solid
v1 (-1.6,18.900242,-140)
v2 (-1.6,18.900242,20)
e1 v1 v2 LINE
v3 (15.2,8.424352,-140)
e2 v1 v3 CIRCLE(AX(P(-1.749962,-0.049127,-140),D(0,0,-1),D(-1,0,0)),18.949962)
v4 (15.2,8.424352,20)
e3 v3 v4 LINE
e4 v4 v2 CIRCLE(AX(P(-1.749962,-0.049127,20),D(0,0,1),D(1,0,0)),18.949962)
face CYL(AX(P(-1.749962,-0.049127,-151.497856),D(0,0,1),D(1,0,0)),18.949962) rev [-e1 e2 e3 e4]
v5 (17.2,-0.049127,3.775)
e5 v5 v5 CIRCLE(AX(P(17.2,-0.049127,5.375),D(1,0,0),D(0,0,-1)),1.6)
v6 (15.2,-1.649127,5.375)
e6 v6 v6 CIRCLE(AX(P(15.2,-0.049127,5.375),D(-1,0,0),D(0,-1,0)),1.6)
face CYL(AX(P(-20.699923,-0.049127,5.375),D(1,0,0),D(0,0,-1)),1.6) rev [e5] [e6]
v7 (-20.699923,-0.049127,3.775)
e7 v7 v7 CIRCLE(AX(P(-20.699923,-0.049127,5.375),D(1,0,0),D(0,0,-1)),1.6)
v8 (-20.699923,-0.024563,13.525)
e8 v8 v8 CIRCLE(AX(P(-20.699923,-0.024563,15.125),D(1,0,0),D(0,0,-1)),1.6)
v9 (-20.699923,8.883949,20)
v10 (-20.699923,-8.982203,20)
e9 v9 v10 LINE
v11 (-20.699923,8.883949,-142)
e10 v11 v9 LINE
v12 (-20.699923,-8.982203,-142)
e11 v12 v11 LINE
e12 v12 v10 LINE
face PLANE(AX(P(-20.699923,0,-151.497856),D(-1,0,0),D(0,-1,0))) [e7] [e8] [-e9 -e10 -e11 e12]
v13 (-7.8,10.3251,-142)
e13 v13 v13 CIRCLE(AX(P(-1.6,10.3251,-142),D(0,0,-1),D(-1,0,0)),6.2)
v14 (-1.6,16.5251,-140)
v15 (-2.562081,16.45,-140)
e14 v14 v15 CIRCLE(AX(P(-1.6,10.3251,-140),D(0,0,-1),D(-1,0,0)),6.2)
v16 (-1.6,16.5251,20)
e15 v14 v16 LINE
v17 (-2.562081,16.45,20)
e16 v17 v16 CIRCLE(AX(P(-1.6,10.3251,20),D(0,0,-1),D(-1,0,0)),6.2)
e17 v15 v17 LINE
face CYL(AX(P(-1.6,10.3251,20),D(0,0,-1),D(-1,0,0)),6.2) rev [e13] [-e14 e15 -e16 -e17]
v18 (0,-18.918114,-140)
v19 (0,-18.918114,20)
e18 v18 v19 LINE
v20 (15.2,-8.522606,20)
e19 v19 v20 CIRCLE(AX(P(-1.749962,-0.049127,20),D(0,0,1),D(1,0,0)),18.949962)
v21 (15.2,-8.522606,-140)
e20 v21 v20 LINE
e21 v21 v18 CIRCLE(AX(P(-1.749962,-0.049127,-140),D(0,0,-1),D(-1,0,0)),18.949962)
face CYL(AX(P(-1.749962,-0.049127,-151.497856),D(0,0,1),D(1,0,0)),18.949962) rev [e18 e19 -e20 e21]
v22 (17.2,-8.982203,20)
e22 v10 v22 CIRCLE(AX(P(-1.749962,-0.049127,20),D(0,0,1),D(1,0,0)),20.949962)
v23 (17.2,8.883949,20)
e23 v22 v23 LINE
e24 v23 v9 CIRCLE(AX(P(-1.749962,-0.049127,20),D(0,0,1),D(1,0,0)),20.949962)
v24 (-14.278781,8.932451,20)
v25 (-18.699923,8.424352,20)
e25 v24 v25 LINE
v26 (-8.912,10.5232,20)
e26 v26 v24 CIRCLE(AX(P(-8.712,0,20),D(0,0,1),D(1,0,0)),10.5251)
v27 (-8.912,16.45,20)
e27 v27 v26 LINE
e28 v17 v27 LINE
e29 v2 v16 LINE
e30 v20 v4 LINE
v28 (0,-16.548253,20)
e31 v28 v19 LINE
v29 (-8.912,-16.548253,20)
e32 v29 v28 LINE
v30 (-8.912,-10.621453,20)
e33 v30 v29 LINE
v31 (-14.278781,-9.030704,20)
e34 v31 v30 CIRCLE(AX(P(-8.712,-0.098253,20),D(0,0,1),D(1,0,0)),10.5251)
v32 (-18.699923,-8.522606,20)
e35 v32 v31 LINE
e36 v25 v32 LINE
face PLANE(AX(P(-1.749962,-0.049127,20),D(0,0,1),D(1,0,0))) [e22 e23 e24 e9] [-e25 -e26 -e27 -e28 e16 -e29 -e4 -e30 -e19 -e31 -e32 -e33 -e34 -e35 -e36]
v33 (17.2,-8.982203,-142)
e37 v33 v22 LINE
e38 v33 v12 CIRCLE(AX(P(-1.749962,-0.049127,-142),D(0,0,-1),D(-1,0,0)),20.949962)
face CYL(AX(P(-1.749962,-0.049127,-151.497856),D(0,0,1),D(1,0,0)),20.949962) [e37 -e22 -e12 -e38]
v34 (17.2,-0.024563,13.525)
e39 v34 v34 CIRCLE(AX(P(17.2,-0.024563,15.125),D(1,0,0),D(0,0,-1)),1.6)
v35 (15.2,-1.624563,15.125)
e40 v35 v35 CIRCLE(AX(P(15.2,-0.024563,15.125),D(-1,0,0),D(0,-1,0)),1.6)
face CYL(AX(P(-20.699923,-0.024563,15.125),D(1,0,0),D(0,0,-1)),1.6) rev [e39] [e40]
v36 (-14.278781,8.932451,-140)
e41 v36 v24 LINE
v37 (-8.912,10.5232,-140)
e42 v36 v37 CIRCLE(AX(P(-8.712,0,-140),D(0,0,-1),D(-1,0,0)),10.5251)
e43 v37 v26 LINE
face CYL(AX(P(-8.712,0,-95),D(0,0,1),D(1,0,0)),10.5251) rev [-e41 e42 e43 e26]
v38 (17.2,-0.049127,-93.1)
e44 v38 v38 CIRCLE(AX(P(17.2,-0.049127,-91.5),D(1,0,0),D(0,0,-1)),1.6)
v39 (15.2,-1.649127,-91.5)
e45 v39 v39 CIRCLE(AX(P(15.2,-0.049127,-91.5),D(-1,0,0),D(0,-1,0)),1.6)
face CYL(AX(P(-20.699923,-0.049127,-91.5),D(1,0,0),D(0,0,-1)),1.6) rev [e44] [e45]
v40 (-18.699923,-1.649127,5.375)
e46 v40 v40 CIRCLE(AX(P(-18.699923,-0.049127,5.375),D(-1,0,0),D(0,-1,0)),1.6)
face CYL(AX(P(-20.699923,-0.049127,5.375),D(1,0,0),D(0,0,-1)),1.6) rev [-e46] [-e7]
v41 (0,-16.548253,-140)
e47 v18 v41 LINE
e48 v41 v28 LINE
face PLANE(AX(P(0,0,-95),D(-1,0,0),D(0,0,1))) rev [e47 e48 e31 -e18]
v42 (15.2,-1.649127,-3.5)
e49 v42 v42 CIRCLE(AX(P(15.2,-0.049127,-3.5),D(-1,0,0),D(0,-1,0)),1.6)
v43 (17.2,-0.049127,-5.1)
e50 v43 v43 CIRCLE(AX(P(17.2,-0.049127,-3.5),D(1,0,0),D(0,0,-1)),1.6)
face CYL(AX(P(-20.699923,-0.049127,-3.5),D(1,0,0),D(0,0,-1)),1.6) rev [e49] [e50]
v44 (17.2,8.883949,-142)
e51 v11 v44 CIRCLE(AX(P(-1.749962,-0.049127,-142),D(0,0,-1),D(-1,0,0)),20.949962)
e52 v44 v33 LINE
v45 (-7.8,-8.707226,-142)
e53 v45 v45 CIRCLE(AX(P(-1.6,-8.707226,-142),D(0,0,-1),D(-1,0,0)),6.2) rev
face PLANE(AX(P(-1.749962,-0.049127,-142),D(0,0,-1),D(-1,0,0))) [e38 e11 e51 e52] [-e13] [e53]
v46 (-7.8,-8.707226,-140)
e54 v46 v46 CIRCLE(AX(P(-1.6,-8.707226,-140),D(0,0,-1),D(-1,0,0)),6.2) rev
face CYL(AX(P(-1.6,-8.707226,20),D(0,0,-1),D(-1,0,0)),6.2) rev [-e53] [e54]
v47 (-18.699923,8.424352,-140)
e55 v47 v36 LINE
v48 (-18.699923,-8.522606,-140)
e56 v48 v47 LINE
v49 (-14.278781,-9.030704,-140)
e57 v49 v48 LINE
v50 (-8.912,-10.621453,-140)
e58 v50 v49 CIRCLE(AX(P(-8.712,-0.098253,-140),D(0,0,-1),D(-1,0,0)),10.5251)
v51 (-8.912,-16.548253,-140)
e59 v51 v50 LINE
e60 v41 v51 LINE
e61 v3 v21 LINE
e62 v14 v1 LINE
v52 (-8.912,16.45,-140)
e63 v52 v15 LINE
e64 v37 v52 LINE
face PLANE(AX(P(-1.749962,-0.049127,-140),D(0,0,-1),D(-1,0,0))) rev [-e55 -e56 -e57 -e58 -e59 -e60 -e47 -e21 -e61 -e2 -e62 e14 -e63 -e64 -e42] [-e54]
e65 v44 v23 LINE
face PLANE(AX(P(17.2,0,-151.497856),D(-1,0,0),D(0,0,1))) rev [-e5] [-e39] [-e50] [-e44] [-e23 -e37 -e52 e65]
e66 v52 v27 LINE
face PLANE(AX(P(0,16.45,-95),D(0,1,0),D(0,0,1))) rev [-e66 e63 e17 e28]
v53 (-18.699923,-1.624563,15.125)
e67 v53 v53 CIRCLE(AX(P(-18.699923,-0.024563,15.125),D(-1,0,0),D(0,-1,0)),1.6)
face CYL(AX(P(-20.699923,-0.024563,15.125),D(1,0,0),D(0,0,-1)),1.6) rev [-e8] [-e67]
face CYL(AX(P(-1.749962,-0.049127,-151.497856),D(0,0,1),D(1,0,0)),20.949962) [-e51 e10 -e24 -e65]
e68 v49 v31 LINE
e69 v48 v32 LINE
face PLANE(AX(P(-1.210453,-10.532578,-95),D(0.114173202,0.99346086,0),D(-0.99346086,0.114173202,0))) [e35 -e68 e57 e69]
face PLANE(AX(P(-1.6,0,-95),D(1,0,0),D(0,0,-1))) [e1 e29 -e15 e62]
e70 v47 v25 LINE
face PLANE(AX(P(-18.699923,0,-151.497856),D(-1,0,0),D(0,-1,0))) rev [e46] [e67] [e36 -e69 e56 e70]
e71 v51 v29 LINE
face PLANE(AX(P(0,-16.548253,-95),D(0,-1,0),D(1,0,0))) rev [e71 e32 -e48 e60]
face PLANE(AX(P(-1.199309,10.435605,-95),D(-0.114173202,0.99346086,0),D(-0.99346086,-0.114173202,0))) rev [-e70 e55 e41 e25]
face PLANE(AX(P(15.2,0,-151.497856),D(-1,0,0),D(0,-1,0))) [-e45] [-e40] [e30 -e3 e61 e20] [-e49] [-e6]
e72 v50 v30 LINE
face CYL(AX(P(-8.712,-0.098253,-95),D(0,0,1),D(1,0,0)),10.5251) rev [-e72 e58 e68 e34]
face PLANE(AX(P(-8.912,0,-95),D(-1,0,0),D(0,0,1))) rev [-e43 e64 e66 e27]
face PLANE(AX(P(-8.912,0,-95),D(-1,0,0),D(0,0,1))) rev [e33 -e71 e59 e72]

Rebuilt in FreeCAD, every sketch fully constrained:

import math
import FreeCAD as App
import Part
import Sketcher
from FreeCAD import Vector
Q = App.Units.Quantity

doc = App.newDocument("Part")
body = doc.addObject("PartDesign::Body", "Body")

# Sketch on XY plane
sketch1 = body.newObject("Sketcher::SketchObject", "Sketch")
sketch1.AttachmentSupport = (doc.getObject("XY_Plane"), [""])
sketch1.MapMode = "FlatFace"
sketch1.addGeometry(Part.LineSegment(Vector(-20.699923, 8.883949, 0), Vector(-20.699923, -8.982203, 0)), False)
sketch1.addGeometry(Part.ArcOfCircle(Part.Circle(Vector(-1.749962, -0.049127, 0), Vector(0, 0, 1), 20.949962), math.radians(-154.760652), math.radians(-25.239348)), False)
sketch1.addGeometry(Part.LineSegment(Vector(17.2, -8.982203, 0), Vector(17.2, 8.883949, 0)), False)
sketch1.addGeometry(Part.ArcOfCircle(Part.Circle(Vector(-1.749962, -0.049127, 0), Vector(0, 0, 1), 20.949962), math.radians(25.239348), math.radians(154.760652)), False)
sketch1.addGeometry(Part.ArcOfCircle(Part.Circle(Vector(-1.749962, -0.049127, 0), Vector(0, 0, 1), 18.949962), math.radians(-153.43901), math.radians(-26.56099)), False)
sketch1.addGeometry(Part.LineSegment(Vector(-18.699923, -8.522606, 0), Vector(-18.699923, 8.424352, 0)), False)
sketch1.addGeometry(Part.ArcOfCircle(Part.Circle(Vector(-1.749962, -0.049127, 0), Vector(0, 0, 1), 18.949962), math.radians(26.56099), math.radians(153.43901)), False)
sketch1.addGeometry(Part.LineSegment(Vector(15.2, 8.424352, 0), Vector(15.2, -8.522606, 0)), False)
sketch1.addConstraint(Sketcher.Constraint("Coincident", 0, 2, 1, 1))
sketch1.addConstraint(Sketcher.Constraint("Coincident", 1, 2, 2, 1))
sketch1.addConstraint(Sketcher.Constraint("Coincident", 2, 2, 3, 1))
sketch1.addConstraint(Sketcher.Constraint("Coincident", 3, 2, 0, 1))
sketch1.addConstraint(Sketcher.Constraint("Coincident", 4, 1, 5, 1))
sketch1.addConstraint(Sketcher.Constraint("Coincident", 5, 2, 6, 2))
sketch1.addConstraint(Sketcher.Constraint("Coincident", 6, 1, 7, 1))
sketch1.addConstraint(Sketcher.Constraint("Coincident", 7, 2, 4, 2))
sketch1.addConstraint(Sketcher.Constraint("Vertical", 0))
sketch1.addConstraint(Sketcher.Constraint("Vertical", 2))
sketch1.addConstraint(Sketcher.Constraint("Vertical", 5))
sketch1.addConstraint(Sketcher.Constraint("Vertical", 7))
sketch1.addConstraint(Sketcher.Constraint("Coincident", 3, 3, 1, 3))
sketch1.addConstraint(Sketcher.Constraint("Coincident", 4, 3, 1, 3))
sketch1.addConstraint(Sketcher.Constraint("Coincident", 6, 3, 1, 3))
sketch1.addConstraint(Sketcher.Constraint("Equal", 1, 3))
sketch1.addConstraint(Sketcher.Constraint("Equal", 4, 6))
sketch1.addConstraint(Sketcher.Constraint("Horizontal", 0, 2, 1, 2))
sketch1.addConstraint(Sketcher.Constraint("Horizontal", 5, 2, 6, 1))
sketch1.addConstraint(Sketcher.Constraint("DistanceX", 0, 2, 4, 1, Q("2 mm")))
sketch1.addConstraint(Sketcher.Constraint("DistanceX", -1, 1, 1, 2, Q("17.2 mm")))
sketch1.addConstraint(Sketcher.Constraint("Radius", 1, Q("20.949962 mm")))
sketch1.addConstraint(Sketcher.Constraint("Radius", 4, Q("18.949962 mm")))
sketch1.addConstraint(Sketcher.Constraint("DistanceY", 5, 1, 5, 2, Q("16.946958 mm")))
sketch1.addConstraint(Sketcher.Constraint("DistanceY", -1, 1, 2, 2, Q("8.883949 mm")))
pad1 = body.newObject("PartDesign::Pad", "Pad")
pad1.Profile = sketch1
pad1.Length = 95
pad1.Reversed = True

# Sketch on XY plane
sketch2 = body.newObject("Sketcher::SketchObject", "Sketch001")
sketch2.AttachmentSupport = (doc.getObject("XY_Plane"), [""])
sketch2.MapMode = "FlatFace"
sketch2.addGeometry(Part.ArcOfCircle(Part.Circle(Vector(-8.712, 0, 0), Vector(0, 0, 1), 10.5251), math.radians(91.088811), math.radians(121.931519)), False)
sketch2.addGeometry(Part.LineSegment(Vector(-8.912, 10.5232, 0), Vector(-8.912, 16.45, 0)), False)
sketch2.addGeometry(Part.LineSegment(Vector(-8.912, 16.45, 0), Vector(7.570975, 16.45, 0)), False)
sketch2.addGeometry(Part.ArcOfCircle(Part.Circle(Vector(-1.749962, -0.049127, 0), Vector(0, 0, 1), 18.949962), math.radians(60.536367), math.radians(153.43901)), False)
sketch2.addGeometry(Part.LineSegment(Vector(-18.699923, 8.424352, 0), Vector(-14.278781, 8.932451, 0)), False)
sketch2.addGeometry(Part.ArcOfCircle(Part.Circle(Vector(-8.712, -0.098253, 0), Vector(0, 0, 1), 10.5251), math.radians(-121.931519), math.radians(-91.088811)), False)
sketch2.addGeometry(Part.LineSegment(Vector(-14.278781, -9.030704, 0), Vector(-18.699923, -8.522606, 0)), False)
sketch2.addGeometry(Part.ArcOfCircle(Part.Circle(Vector(-1.749962, -0.049127, 0), Vector(0, 0, 1), 18.949962), math.radians(-153.43901), math.radians(-60.536367)), False)
sketch2.addGeometry(Part.LineSegment(Vector(7.570975, -16.548253, 0), Vector(-8.912, -16.548253, 0)), False)
sketch2.addGeometry(Part.LineSegment(Vector(-8.912, -16.548253, 0), Vector(-8.912, -10.621453, 0)), False)
sketch2.addConstraint(Sketcher.Constraint("Coincident", 0, 1, 1, 1))
sketch2.addConstraint(Sketcher.Constraint("Coincident", 1, 2, 2, 1))
sketch2.addConstraint(Sketcher.Constraint("Coincident", 2, 2, 3, 1))
sketch2.addConstraint(Sketcher.Constraint("Coincident", 3, 2, 4, 1))
sketch2.addConstraint(Sketcher.Constraint("Coincident", 4, 2, 0, 2))
sketch2.addConstraint(Sketcher.Constraint("Coincident", 5, 1, 6, 1))
sketch2.addConstraint(Sketcher.Constraint("Coincident", 6, 2, 7, 1))
sketch2.addConstraint(Sketcher.Constraint("Coincident", 7, 2, 8, 1))
sketch2.addConstraint(Sketcher.Constraint("Coincident", 8, 2, 9, 1))
sketch2.addConstraint(Sketcher.Constraint("Coincident", 9, 2, 5, 2))
sketch2.addConstraint(Sketcher.Constraint("Vertical", 1))
sketch2.addConstraint(Sketcher.Constraint("Horizontal", 2))
sketch2.addConstraint(Sketcher.Constraint("Horizontal", 8))
sketch2.addConstraint(Sketcher.Constraint("Vertical", 9))
sketch2.addConstraint(Sketcher.Constraint("Coincident", 7, 3, 3, 3))
sketch2.addConstraint(Sketcher.Constraint("Equal", 0, 5))
sketch2.addConstraint(Sketcher.Constraint("Equal", 3, 7))
sketch2.addConstraint(Sketcher.Constraint("PointOnObject", 0, 3, -1))
sketch2.addConstraint(Sketcher.Constraint("Vertical", 0, 3, 5, 3))
sketch2.addConstraint(Sketcher.Constraint("Vertical", 4, 2, 5, 1))
sketch2.addConstraint(Sketcher.Constraint("Vertical", 3, 2, 6, 2))
sketch2.addConstraint(Sketcher.Constraint("Vertical", 2, 2, 7, 2))
sketch2.addConstraint(Sketcher.Constraint("Vertical", 1, 2, 8, 2))
sketch2.addConstraint(Sketcher.Constraint("Equal", 1, 9))
sketch2.addConstraint(Sketcher.Constraint("Radius", 0, Q("10.5251 mm")))
sketch2.addConstraint(Sketcher.Constraint("DistanceX", 0, 1, 0, 3, Q("0.2 mm")))
sketch2.addConstraint(Sketcher.Constraint("DistanceY", -1, 1, 1, 2, Q("16.45 mm")))
sketch2.addConstraint(Sketcher.Constraint("Radius", 3, Q("18.949962 mm")))
sketch2.addConstraint(Sketcher.Constraint("DistanceX", 0, 3, -1, 1, Q("8.712 mm")))
sketch2.addConstraint(Sketcher.Constraint("DistanceY", 3, 2, 4, 2, Q("0.508099 mm")))
sketch2.addConstraint(Sketcher.Constraint("DistanceX", 2, 1, 2, 2, Q("16.482975 mm")))
sketch2.addConstraint(Sketcher.Constraint("DistanceX", 3, 3, -1, 1, Q("1.749962 mm")))
sketch2.addConstraint(Sketcher.Constraint("DistanceX", 4, 2, -1, 1, Q("14.278781 mm")))
pad2 = body.newObject("PartDesign::Pad", "Pad001")
pad2.Profile = sketch2
pad2.Length = 95
pad2.Reversed = True

# Sketch on XY plane
sketch3 = body.newObject("Sketcher::SketchObject", "Sketch002")
sketch3.AttachmentSupport = (doc.getObject("XY_Plane"), [""])
sketch3.MapMode = "FlatFace"
sketch3.addGeometry(Part.LineSegment(Vector(7.570975, -16.548253, 0), Vector(0, -16.548253, 0)), False)
sketch3.addGeometry(Part.LineSegment(Vector(0, -16.548253, 0), Vector(0, -18.918114, 0)), False)
sketch3.addGeometry(Part.ArcOfCircle(Part.Circle(Vector(-1.749962, -0.049127, 0), Vector(0, 0, 1), 18.949962), math.radians(-84.701389), math.radians(-60.536367)), False)
sketch3.addGeometry(Part.ArcOfCircle(Part.Circle(Vector(-1.749962, -0.049127, 0), Vector(0, 0, 1), 18.949962), math.radians(60.536367), math.radians(89.546581)), False)
sketch3.addGeometry(Part.LineSegment(Vector(-1.6, 18.900242, 0), Vector(-1.6, 16.45, 0)), False)
sketch3.addGeometry(Part.LineSegment(Vector(-1.6, 16.45, 0), Vector(7.570975, 16.45, 0)), False)
sketch3.addConstraint(Sketcher.Constraint("Coincident", 0, 2, 1, 1))
sketch3.addConstraint(Sketcher.Constraint("Coincident", 1, 2, 2, 1))
sketch3.addConstraint(Sketcher.Constraint("Coincident", 2, 2, 0, 1))
sketch3.addConstraint(Sketcher.Constraint("Coincident", 3, 2, 4, 1))
sketch3.addConstraint(Sketcher.Constraint("Coincident", 4, 2, 5, 1))
sketch3.addConstraint(Sketcher.Constraint("Coincident", 5, 2, 3, 1))
sketch3.addConstraint(Sketcher.Constraint("Horizontal", 0))
sketch3.addConstraint(Sketcher.Constraint("Vertical", 1))
sketch3.addConstraint(Sketcher.Constraint("Vertical", 4))
sketch3.addConstraint(Sketcher.Constraint("Horizontal", 5))
sketch3.addConstraint(Sketcher.Constraint("Coincident", 3, 3, 2, 3))
sketch3.addConstraint(Sketcher.Constraint("Equal", 2, 3))
sketch3.addConstraint(Sketcher.Constraint("PointOnObject", 0, 2, -2))
sketch3.addConstraint(Sketcher.Constraint("Vertical", 2, 2, 5, 2))
sketch3.addConstraint(Sketcher.Constraint("DistanceX", 3, 2, -1, 1, Q("1.6 mm")))
sketch3.addConstraint(Sketcher.Constraint("DistanceY", -1, 1, 4, 2, Q("16.45 mm")))
sketch3.addConstraint(Sketcher.Constraint("Radius", 2, Q("18.949962 mm")))
sketch3.addConstraint(Sketcher.Constraint("DistanceY", 1, 2, 1, 1, Q("2.369861 mm")))
sketch3.addConstraint(Sketcher.Constraint("DistanceY", 4, 2, 4, 1, Q("2.450242 mm")))
pocket1 = body.newObject("PartDesign::Pocket", "Pocket")
pocket1.Profile = sketch3
pocket1.Type = "ThroughAll"

# Sketch on XY plane
sketch4 = body.newObject("Sketcher::SketchObject", "Sketch003")
sketch4.AttachmentSupport = (doc.getObject("XY_Plane"), [""])
sketch4.MapMode = "FlatFace"
sketch4.addGeometry(Part.LineSegment(Vector(-20.699923, 8.883949, 0), Vector(-20.699923, -8.982203, 0)), False)
sketch4.addGeometry(Part.ArcOfCircle(Part.Circle(Vector(-1.749962, -0.049127, 0), Vector(0, 0, 1), 20.949962), math.radians(-154.760652), math.radians(-25.239348)), False)
sketch4.addGeometry(Part.LineSegment(Vector(17.2, -8.982203, 0), Vector(17.2, 8.883949, 0)), False)
sketch4.addGeometry(Part.ArcOfCircle(Part.Circle(Vector(-1.749962, -0.049127, 0), Vector(0, 0, 1), 20.949962), math.radians(25.239348), math.radians(154.760652)), False)
sketch4.addGeometry(Part.LineSegment(Vector(-14.278781, -9.030704, 0), Vector(-18.699923, -8.522606, 0)), False)
sketch4.addGeometry(Part.LineSegment(Vector(-18.699923, -8.522606, 0), Vector(-18.699923, 8.424352, 0)), False)
sketch4.addGeometry(Part.LineSegment(Vector(-18.699923, 8.424352, 0), Vector(-14.278781, 8.932451, 0)), False)
sketch4.addGeometry(Part.ArcOfCircle(Part.Circle(Vector(-8.712, 0, 0), Vector(0, 0, 1), 10.5251), math.radians(91.088811), math.radians(121.931519)), False)
sketch4.addGeometry(Part.LineSegment(Vector(-8.912, 10.5232, 0), Vector(-8.912, 16.45, 0)), False)
sketch4.addGeometry(Part.LineSegment(Vector(-8.912, 16.45, 0), Vector(-1.6, 16.45, 0)), False)
sketch4.addGeometry(Part.LineSegment(Vector(-1.6, 16.45, 0), Vector(-1.6, 18.900242, 0)), False)
sketch4.addGeometry(Part.ArcOfCircle(Part.Circle(Vector(-1.749962, -0.049127, 0), Vector(0, 0, 1), 18.949962), math.radians(26.56099), math.radians(89.546581)), False)
sketch4.addGeometry(Part.LineSegment(Vector(15.2, 8.424352, 0), Vector(15.2, -8.522606, 0)), False)
sketch4.addGeometry(Part.ArcOfCircle(Part.Circle(Vector(-1.749962, -0.049127, 0), Vector(0, 0, 1), 18.949962), math.radians(-84.701389), math.radians(-26.56099)), False)
sketch4.addGeometry(Part.LineSegment(Vector(0, -18.918114, 0), Vector(0, -16.548253, 0)), False)
sketch4.addGeometry(Part.LineSegment(Vector(0, -16.548253, 0), Vector(-8.912, -16.548253, 0)), False)
sketch4.addGeometry(Part.LineSegment(Vector(-8.912, -16.548253, 0), Vector(-8.912, -10.621453, 0)), False)
sketch4.addGeometry(Part.ArcOfCircle(Part.Circle(Vector(-8.712, -0.098253, 0), Vector(0, 0, 1), 10.5251), math.radians(-121.931519), math.radians(-91.088811)), False)
sketch4.addConstraint(Sketcher.Constraint("Coincident", 0, 2, 1, 1))
sketch4.addConstraint(Sketcher.Constraint("Coincident", 1, 2, 2, 1))
sketch4.addConstraint(Sketcher.Constraint("Coincident", 2, 2, 3, 1))
sketch4.addConstraint(Sketcher.Constraint("Coincident", 3, 2, 0, 1))
sketch4.addConstraint(Sketcher.Constraint("Coincident", 4, 2, 5, 1))
sketch4.addConstraint(Sketcher.Constraint("Coincident", 5, 2, 6, 1))
sketch4.addConstraint(Sketcher.Constraint("Coincident", 6, 2, 7, 2))
sketch4.addConstraint(Sketcher.Constraint("Coincident", 7, 1, 8, 1))
sketch4.addConstraint(Sketcher.Constraint("Coincident", 8, 2, 9, 1))
sketch4.addConstraint(Sketcher.Constraint("Coincident", 9, 2, 10, 1))
sketch4.addConstraint(Sketcher.Constraint("Coincident", 10, 2, 11, 2))
sketch4.addConstraint(Sketcher.Constraint("Coincident", 11, 1, 12, 1))
sketch4.addConstraint(Sketcher.Constraint("Coincident", 12, 2, 13, 2))
sketch4.addConstraint(Sketcher.Constraint("Coincident", 13, 1, 14, 1))
sketch4.addConstraint(Sketcher.Constraint("Coincident", 14, 2, 15, 1))
sketch4.addConstraint(Sketcher.Constraint("Coincident", 15, 2, 16, 1))
sketch4.addConstraint(Sketcher.Constraint("Coincident", 16, 2, 17, 2))
sketch4.addConstraint(Sketcher.Constraint("Coincident", 17, 1, 4, 1))
sketch4.addConstraint(Sketcher.Constraint("Vertical", 0))
sketch4.addConstraint(Sketcher.Constraint("Vertical", 2))
sketch4.addConstraint(Sketcher.Constraint("Vertical", 5))
sketch4.addConstraint(Sketcher.Constraint("Vertical", 8))
sketch4.addConstraint(Sketcher.Constraint("Horizontal", 9))
sketch4.addConstraint(Sketcher.Constraint("Vertical", 10))
sketch4.addConstraint(Sketcher.Constraint("Vertical", 12))
sketch4.addConstraint(Sketcher.Constraint("Vertical", 14))
sketch4.addConstraint(Sketcher.Constraint("Horizontal", 15))
sketch4.addConstraint(Sketcher.Constraint("Vertical", 16))
sketch4.addConstraint(Sketcher.Constraint("Coincident", 3, 3, 1, 3))
sketch4.addConstraint(Sketcher.Constraint("Coincident", 11, 3, 1, 3))
sketch4.addConstraint(Sketcher.Constraint("Coincident", 13, 3, 1, 3))
sketch4.addConstraint(Sketcher.Constraint("Equal", 1, 3))
sketch4.addConstraint(Sketcher.Constraint("Equal", 11, 13))
sketch4.addConstraint(Sketcher.Constraint("Equal", 7, 17))
sketch4.addConstraint(Sketcher.Constraint("PointOnObject", 7, 3, -1))
sketch4.addConstraint(Sketcher.Constraint("PointOnObject", 13, 1, -2))
sketch4.addConstraint(Sketcher.Constraint("Horizontal", 0, 2, 1, 2))
sketch4.addConstraint(Sketcher.Constraint("Horizontal", 5, 2, 11, 1))
sketch4.addConstraint(Sketcher.Constraint("Horizontal", 4, 2, 12, 2))
sketch4.addConstraint(Sketcher.Constraint("Vertical", 7, 3, 17, 3))
sketch4.addConstraint(Sketcher.Constraint("Vertical", 8, 2, 15, 2))
sketch4.addConstraint(Sketcher.Constraint("Vertical", 6, 2, 17, 1))
sketch4.addConstraint(Sketcher.Constraint("Equal", 8, 16))
sketch4.addConstraint(Sketcher.Constraint("Equal", 4, 6))
sketch4.addConstraint(Sketcher.Constraint("DistanceX", 0, 2, 4, 2, Q("2 mm")))
sketch4.addConstraint(Sketcher.Constraint("DistanceX", 11, 1, 2, 2, Q("2 mm")))
sketch4.addConstraint(Sketcher.Constraint("DistanceX", -1, 1, 1, 2, Q("17.2 mm")))
sketch4.addConstraint(Sketcher.Constraint("DistanceX", 9, 2, -1, 1, Q("1.6 mm")))
sketch4.addConstraint(Sketcher.Constraint("Radius", 7, Q("10.5251 mm")))
sketch4.addConstraint(Sketcher.Constraint("DistanceX", 7, 1, 7, 3, Q("0.2 mm")))
sketch4.addConstraint(Sketcher.Constraint("DistanceX", 9, 1, 9, 2, Q("7.312 mm")))
sketch4.addConstraint(Sketcher.Constraint("DistanceY", -1, 1, 8, 2, Q("16.45 mm")))
sketch4.addConstraint(Sketcher.Constraint("Radius", 1, Q("20.949962 mm")))
sketch4.addConstraint(Sketcher.Constraint("Radius", 11, Q("18.949962 mm")))
sketch4.addConstraint(Sketcher.Constraint("DistanceY", 5, 1, 5, 2, Q("16.946958 mm")))
sketch4.addConstraint(Sketcher.Constraint("DistanceY", 10, 1, 10, 2, Q("2.450242 mm")))
sketch4.addConstraint(Sketcher.Constraint("DistanceY", 5, 2, 6, 2, Q("0.508099 mm")))
pad3 = body.newObject("PartDesign::Pad", "Pad002")
pad3.Profile = sketch4
pad3.Length = 20

# Sketch on XY plane
sketch5 = body.newObject("Sketcher::SketchObject", "Sketch004")
sketch5.AttachmentSupport = (doc.getObject("XY_Plane"), [""])
sketch5.MapMode = "FlatFace"
sketch5.AttachmentOffset = App.Placement(Vector(0, 0, -95), App.Rotation())
sketch5.addGeometry(Part.LineSegment(Vector(-20.699923, -8.982203, 0), Vector(-20.699923, 8.883949, 0)), False)
sketch5.addGeometry(Part.ArcOfCircle(Part.Circle(Vector(-1.749962, -0.049127, 0), Vector(0, 0, 1), 20.949962), math.radians(25.239348), math.radians(154.760652)), False)
sketch5.addGeometry(Part.LineSegment(Vector(17.2, 8.883949, 0), Vector(17.2, -8.982203, 0)), False)
sketch5.addGeometry(Part.ArcOfCircle(Part.Circle(Vector(-1.749962, -0.049127, 0), Vector(0, 0, 1), 20.949962), math.radians(-154.760652), math.radians(-25.239348)), False)
sketch5.addGeometry(Part.LineSegment(Vector(15.2, -8.522606, 0), Vector(15.2, 8.424352, 0)), False)
sketch5.addGeometry(Part.ArcOfCircle(Part.Circle(Vector(-1.749962, -0.049127, 0), Vector(0, 0, 1), 18.949962), math.radians(26.56099), math.radians(89.546581)), False)
sketch5.addGeometry(Part.LineSegment(Vector(-1.6, 18.900242, 0), Vector(-1.6, 16.45, 0)), False)
sketch5.addGeometry(Part.LineSegment(Vector(-1.6, 16.45, 0), Vector(-8.912, 16.45, 0)), False)
sketch5.addGeometry(Part.LineSegment(Vector(-8.912, 16.45, 0), Vector(-8.912, 10.5232, 0)), False)
sketch5.addGeometry(Part.ArcOfCircle(Part.Circle(Vector(-8.712, 0, 0), Vector(0, 0, 1), 10.5251), math.radians(91.088811), math.radians(121.931519)), False)
sketch5.addGeometry(Part.LineSegment(Vector(-14.278781, 8.932451, 0), Vector(-18.699923, 8.424352, 0)), False)
sketch5.addGeometry(Part.LineSegment(Vector(-18.699923, 8.424352, 0), Vector(-18.699923, -8.522606, 0)), False)
sketch5.addGeometry(Part.LineSegment(Vector(-18.699923, -8.522606, 0), Vector(-14.278781, -9.030704, 0)), False)
sketch5.addGeometry(Part.ArcOfCircle(Part.Circle(Vector(-8.712, -0.098253, 0), Vector(0, 0, 1), 10.5251), math.radians(-121.931519), math.radians(-91.088811)), False)
sketch5.addGeometry(Part.LineSegment(Vector(-8.912, -10.621453, 0), Vector(-8.912, -16.548253, 0)), False)
sketch5.addGeometry(Part.LineSegment(Vector(-8.912, -16.548253, 0), Vector(0, -16.548253, 0)), False)
sketch5.addGeometry(Part.LineSegment(Vector(0, -16.548253, 0), Vector(0, -18.918114, 0)), False)
sketch5.addGeometry(Part.ArcOfCircle(Part.Circle(Vector(-1.749962, -0.049127, 0), Vector(0, 0, 1), 18.949962), math.radians(-84.701389), math.radians(-26.56099)), False)
sketch5.addConstraint(Sketcher.Constraint("Coincident", 0, 2, 1, 2))
sketch5.addConstraint(Sketcher.Constraint("Coincident", 1, 1, 2, 1))
sketch5.addConstraint(Sketcher.Constraint("Coincident", 2, 2, 3, 2))
sketch5.addConstraint(Sketcher.Constraint("Coincident", 3, 1, 0, 1))
sketch5.addConstraint(Sketcher.Constraint("Coincident", 4, 2, 5, 1))
sketch5.addConstraint(Sketcher.Constraint("Coincident", 5, 2, 6, 1))
sketch5.addConstraint(Sketcher.Constraint("Coincident", 6, 2, 7, 1))
sketch5.addConstraint(Sketcher.Constraint("Coincident", 7, 2, 8, 1))
sketch5.addConstraint(Sketcher.Constraint("Coincident", 8, 2, 9, 1))
sketch5.addConstraint(Sketcher.Constraint("Coincident", 9, 2, 10, 1))
sketch5.addConstraint(Sketcher.Constraint("Coincident", 10, 2, 11, 1))
sketch5.addConstraint(Sketcher.Constraint("Coincident", 11, 2, 12, 1))
sketch5.addConstraint(Sketcher.Constraint("Coincident", 12, 2, 13, 1))
sketch5.addConstraint(Sketcher.Constraint("Coincident", 13, 2, 14, 1))
sketch5.addConstraint(Sketcher.Constraint("Coincident", 14, 2, 15, 1))
sketch5.addConstraint(Sketcher.Constraint("Coincident", 15, 2, 16, 1))
sketch5.addConstraint(Sketcher.Constraint("Coincident", 16, 2, 17, 1))
sketch5.addConstraint(Sketcher.Constraint("Coincident", 17, 2, 4, 1))
sketch5.addConstraint(Sketcher.Constraint("Vertical", 0))
sketch5.addConstraint(Sketcher.Constraint("Vertical", 2))
sketch5.addConstraint(Sketcher.Constraint("Vertical", 4))
sketch5.addConstraint(Sketcher.Constraint("Vertical", 6))
sketch5.addConstraint(Sketcher.Constraint("Horizontal", 7))
sketch5.addConstraint(Sketcher.Constraint("Vertical", 8))
sketch5.addConstraint(Sketcher.Constraint("Vertical", 11))
sketch5.addConstraint(Sketcher.Constraint("Vertical", 14))
sketch5.addConstraint(Sketcher.Constraint("Horizontal", 15))
sketch5.addConstraint(Sketcher.Constraint("Vertical", 16))
sketch5.addConstraint(Sketcher.Constraint("Coincident", 3, 3, 1, 3))
sketch5.addConstraint(Sketcher.Constraint("Coincident", 5, 3, 1, 3))
sketch5.addConstraint(Sketcher.Constraint("Coincident", 17, 3, 1, 3))
sketch5.addConstraint(Sketcher.Constraint("Equal", 1, 3))
sketch5.addConstraint(Sketcher.Constraint("Equal", 9, 13))
sketch5.addConstraint(Sketcher.Constraint("Equal", 5, 17))
sketch5.addConstraint(Sketcher.Constraint("PointOnObject", 9, 3, -1))
sketch5.addConstraint(Sketcher.Constraint("PointOnObject", 15, 2, -2))
sketch5.addConstraint(Sketcher.Constraint("Horizontal", 0, 2, 1, 1))
sketch5.addConstraint(Sketcher.Constraint("Horizontal", 4, 2, 10, 2))
sketch5.addConstraint(Sketcher.Constraint("Horizontal", 11, 2, 17, 2))
sketch5.addConstraint(Sketcher.Constraint("Vertical", 9, 3, 13, 3))
sketch5.addConstraint(Sketcher.Constraint("Vertical", 9, 2, 12, 2))
sketch5.addConstraint(Sketcher.Constraint("Vertical", 8, 2, 13, 2))
sketch5.addConstraint(Sketcher.Constraint("Equal", 8, 14))
sketch5.addConstraint(Sketcher.Constraint("Equal", 10, 12))
sketch5.addConstraint(Sketcher.Constraint("DistanceX", 4, 2, 1, 1, Q("2 mm")))
sketch5.addConstraint(Sketcher.Constraint("DistanceX", 0, 2, 10, 2, Q("2 mm")))
sketch5.addConstraint(Sketcher.Constraint("DistanceX", -1, 1, 1, 1, Q("17.2 mm")))
sketch5.addConstraint(Sketcher.Constraint("DistanceX", 5, 2, -1, 1, Q("1.6 mm")))
sketch5.addConstraint(Sketcher.Constraint("Radius", 9, Q("10.5251 mm")))
sketch5.addConstraint(Sketcher.Constraint("DistanceX", 7, 2, 9, 3, Q("0.2 mm")))
sketch5.addConstraint(Sketcher.Constraint("DistanceX", 7, 2, 7, 1, Q("7.312 mm")))
sketch5.addConstraint(Sketcher.Constraint("DistanceY", -1, 1, 6, 2, Q("16.45 mm")))
sketch5.addConstraint(Sketcher.Constraint("Radius", 1, Q("20.949962 mm")))
sketch5.addConstraint(Sketcher.Constraint("Radius", 5, Q("18.949962 mm")))
sketch5.addConstraint(Sketcher.Constraint("DistanceY", 4, 1, 4, 2, Q("16.946958 mm")))
sketch5.addConstraint(Sketcher.Constraint("DistanceY", 6, 2, 6, 1, Q("2.450242 mm")))
sketch5.addConstraint(Sketcher.Constraint("DistanceY", 0, 2, 9, 2, Q("0.048502 mm")))
pad4 = body.newObject("PartDesign::Pad", "Pad003")
pad4.Profile = sketch5
pad4.Length = 45
pad4.Reversed = True

# Sketch on XY plane
sketch6 = body.newObject("Sketcher::SketchObject", "Sketch005")
sketch6.AttachmentSupport = (doc.getObject("XY_Plane"), [""])
sketch6.MapMode = "FlatFace"
sketch6.AttachmentOffset = App.Placement(Vector(0, 0, -140), App.Rotation())
sketch6.addGeometry(Part.LineSegment(Vector(-20.699923, -8.982203, 0), Vector(-20.699923, 8.883949, 0)), False)
sketch6.addGeometry(Part.ArcOfCircle(Part.Circle(Vector(-1.749962, -0.049127, 0), Vector(0, 0, 1), 20.949962), math.radians(25.239348), math.radians(154.760652)), False)
sketch6.addGeometry(Part.LineSegment(Vector(17.2, 8.883949, 0), Vector(17.2, -8.982203, 0)), False)
sketch6.addGeometry(Part.ArcOfCircle(Part.Circle(Vector(-1.749962, -0.049127, 0), Vector(0, 0, 1), 20.949962), math.radians(-154.760652), math.radians(-25.239348)), False)
sketch6.addConstraint(Sketcher.Constraint("Coincident", 0, 2, 1, 2))
sketch6.addConstraint(Sketcher.Constraint("Coincident", 1, 1, 2, 1))
sketch6.addConstraint(Sketcher.Constraint("Coincident", 2, 2, 3, 2))
sketch6.addConstraint(Sketcher.Constraint("Coincident", 3, 1, 0, 1))
sketch6.addConstraint(Sketcher.Constraint("Vertical", 0))
sketch6.addConstraint(Sketcher.Constraint("Vertical", 2))
sketch6.addConstraint(Sketcher.Constraint("Coincident", 3, 3, 1, 3))
sketch6.addConstraint(Sketcher.Constraint("Equal", 1, 3))
sketch6.addConstraint(Sketcher.Constraint("Horizontal", 0, 2, 1, 1))
sketch6.addConstraint(Sketcher.Constraint("DistanceX", -1, 1, 1, 1, Q("17.2 mm")))
sketch6.addConstraint(Sketcher.Constraint("Radius", 1, Q("20.949962 mm")))
sketch6.addConstraint(Sketcher.Constraint("DistanceY", 0, 1, 0, 2, Q("17.866152 mm")))
sketch6.addConstraint(Sketcher.Constraint("DistanceY", -1, 1, 0, 2, Q("8.883949 mm")))
pad5 = body.newObject("PartDesign::Pad", "Pad004")
pad5.Profile = sketch6
pad5.Length = 2
pad5.Reversed = True

# Sketch on XY plane
sketch7 = body.newObject("Sketcher::SketchObject", "Sketch006")
sketch7.AttachmentSupport = (doc.getObject("XY_Plane"), [""])
sketch7.MapMode = "FlatFace"
sketch7.AttachmentOffset = App.Placement(Vector(0, 0, -142), App.Rotation())
sketch7.addGeometry(Part.ArcOfCircle(Part.Circle(Vector(-1.6, 10.3251, 0), Vector(0, 0, 1), 6.2), math.radians(-78.506193), math.radians(78.506193)), False)
sketch7.addGeometry(Part.ArcOfCircle(Part.Circle(Vector(-1.6, 10.3251, 0), Vector(0, 0, 1), 6.2), math.radians(180), math.radians(281.493807)), False)
sketch7.addGeometry(Part.ArcOfCircle(Part.Circle(Vector(-1.6, 10.3251, 0), Vector(0, 0, 1), 6.2), math.radians(78.506193), math.radians(180)), False)
sketch7.addGeometry(Part.Circle(Vector(-1.6, -8.707226, 0), Vector(0, 0, 1), 6.2), False)
sketch7.addConstraint(Sketcher.Constraint("Tangent", 0, 1, 1, 2))
sketch7.addConstraint(Sketcher.Constraint("Tangent", 1, 1, 2, 2))
sketch7.addConstraint(Sketcher.Constraint("Tangent", 2, 1, 0, 2))
sketch7.addConstraint(Sketcher.Constraint("Equal", 2, 3))
sketch7.addConstraint(Sketcher.Constraint("Horizontal", 2, 3, 1, 1))
sketch7.addConstraint(Sketcher.Constraint("Vertical", 2, 3, 3, 3))
sketch7.addConstraint(Sketcher.Constraint("Vertical", 0, 1, 2, 1))
sketch7.addConstraint(Sketcher.Constraint("Diameter", 3, Q("12.4 mm")))
sketch7.addConstraint(Sketcher.Constraint("DistanceX", 0, 3, -1, 1, Q("1.6 mm")))
sketch7.addConstraint(Sketcher.Constraint("DistanceY", -1, 1, 0, 3, Q("10.3251 mm")))
sketch7.addConstraint(Sketcher.Constraint("DistanceY", 3, 3, 0, 1, Q("12.956659 mm")))
sketch7.addConstraint(Sketcher.Constraint("DistanceY", 3, 3, -1, 1, Q("8.707226 mm")))
pocket2 = body.newObject("PartDesign::Pocket", "Pocket001")
pocket2.Profile = sketch7
pocket2.Type = "ThroughAll"
pocket2.Reversed = True

# Sketch on YZ plane
sketch8 = body.newObject("Sketcher::SketchObject", "Sketch007")
sketch8.AttachmentSupport = (doc.getObject("YZ_Plane"), [""])
sketch8.MapMode = "FlatFace"
sketch8.AttachmentOffset = App.Placement(Vector(0, 0, 17.2), App.Rotation())
sketch8.addGeometry(Part.Circle(Vector(-0.049127, -91.5, 0), Vector(0, 0, 1), 1.6), False)
sketch8.addGeometry(Part.Circle(Vector(-0.049127, -3.5, 0), Vector(0, 0, 1), 1.6), False)
sketch8.addGeometry(Part.Circle(Vector(-0.049127, 5.375, 0), Vector(0, 0, 1), 1.6), False)
sketch8.addGeometry(Part.Circle(Vector(-0.024563, 15.125, 0), Vector(0, 0, 1), 1.6), False)
sketch8.addConstraint(Sketcher.Constraint("Equal", 0, 1))
sketch8.addConstraint(Sketcher.Constraint("Equal", 1, 2))
sketch8.addConstraint(Sketcher.Constraint("Equal", 2, 3))
sketch8.addConstraint(Sketcher.Constraint("Vertical", 0, 3, 1, 3))
sketch8.addConstraint(Sketcher.Constraint("Vertical", 1, 3, 2, 3))
sketch8.addConstraint(Sketcher.Constraint("Diameter", 0, Q("3.2 mm")))
sketch8.addConstraint(Sketcher.Constraint("DistanceY", 0, 3, 1, 3, Q("88 mm")))
sketch8.addConstraint(Sketcher.Constraint("DistanceY", 0, 3, -1, 1, Q("91.5 mm")))
sketch8.addConstraint(Sketcher.Constraint("DistanceY", 2, 3, 3, 3, Q("9.75 mm")))
sketch8.addConstraint(Sketcher.Constraint("DistanceY", -1, 1, 2, 3, Q("5.375 mm")))
sketch8.addConstraint(Sketcher.Constraint("DistanceX", 0, 3, -1, 1, Q("0.049127 mm")))
sketch8.addConstraint(Sketcher.Constraint("DistanceX", 3, 3, -1, 1, Q("0.024563 mm")))
pocket3 = body.newObject("PartDesign::Pocket", "Pocket002")
pocket3.Profile = sketch8
pocket3.Type = "ThroughAll"

# Sketch on YZ plane
sketch9 = body.newObject("Sketcher::SketchObject", "Sketch008")
sketch9.AttachmentSupport = (doc.getObject("YZ_Plane"), [""])
sketch9.MapMode = "FlatFace"
sketch9.AttachmentOffset = App.Placement(Vector(0, 0, -20.699923), App.Rotation())
sketch9.addGeometry(Part.Circle(Vector(-0.049127, -91.5, 0), Vector(0, 0, 1), 1.6), False)
sketch9.addGeometry(Part.Circle(Vector(-0.049127, -3.5, 0), Vector(0, 0, 1), 1.6), False)
sketch9.addConstraint(Sketcher.Constraint("Equal", 0, 1))
sketch9.addConstraint(Sketcher.Constraint("Vertical", 0, 3, 1, 3))
sketch9.addConstraint(Sketcher.Constraint("Diameter", 0, Q("3.2 mm")))
sketch9.addConstraint(Sketcher.Constraint("DistanceY", 0, 3, 1, 3, Q("88 mm")))
sketch9.addConstraint(Sketcher.Constraint("DistanceY", 0, 3, -1, 1, Q("91.5 mm")))
sketch9.addConstraint(Sketcher.Constraint("DistanceX", 0, 3, -1, 1, Q("0.049127 mm")))
pad6 = body.newObject("PartDesign::Pad", "Pad005")
pad6.Profile = sketch9
pad6.Length = 2

doc.recompute()
